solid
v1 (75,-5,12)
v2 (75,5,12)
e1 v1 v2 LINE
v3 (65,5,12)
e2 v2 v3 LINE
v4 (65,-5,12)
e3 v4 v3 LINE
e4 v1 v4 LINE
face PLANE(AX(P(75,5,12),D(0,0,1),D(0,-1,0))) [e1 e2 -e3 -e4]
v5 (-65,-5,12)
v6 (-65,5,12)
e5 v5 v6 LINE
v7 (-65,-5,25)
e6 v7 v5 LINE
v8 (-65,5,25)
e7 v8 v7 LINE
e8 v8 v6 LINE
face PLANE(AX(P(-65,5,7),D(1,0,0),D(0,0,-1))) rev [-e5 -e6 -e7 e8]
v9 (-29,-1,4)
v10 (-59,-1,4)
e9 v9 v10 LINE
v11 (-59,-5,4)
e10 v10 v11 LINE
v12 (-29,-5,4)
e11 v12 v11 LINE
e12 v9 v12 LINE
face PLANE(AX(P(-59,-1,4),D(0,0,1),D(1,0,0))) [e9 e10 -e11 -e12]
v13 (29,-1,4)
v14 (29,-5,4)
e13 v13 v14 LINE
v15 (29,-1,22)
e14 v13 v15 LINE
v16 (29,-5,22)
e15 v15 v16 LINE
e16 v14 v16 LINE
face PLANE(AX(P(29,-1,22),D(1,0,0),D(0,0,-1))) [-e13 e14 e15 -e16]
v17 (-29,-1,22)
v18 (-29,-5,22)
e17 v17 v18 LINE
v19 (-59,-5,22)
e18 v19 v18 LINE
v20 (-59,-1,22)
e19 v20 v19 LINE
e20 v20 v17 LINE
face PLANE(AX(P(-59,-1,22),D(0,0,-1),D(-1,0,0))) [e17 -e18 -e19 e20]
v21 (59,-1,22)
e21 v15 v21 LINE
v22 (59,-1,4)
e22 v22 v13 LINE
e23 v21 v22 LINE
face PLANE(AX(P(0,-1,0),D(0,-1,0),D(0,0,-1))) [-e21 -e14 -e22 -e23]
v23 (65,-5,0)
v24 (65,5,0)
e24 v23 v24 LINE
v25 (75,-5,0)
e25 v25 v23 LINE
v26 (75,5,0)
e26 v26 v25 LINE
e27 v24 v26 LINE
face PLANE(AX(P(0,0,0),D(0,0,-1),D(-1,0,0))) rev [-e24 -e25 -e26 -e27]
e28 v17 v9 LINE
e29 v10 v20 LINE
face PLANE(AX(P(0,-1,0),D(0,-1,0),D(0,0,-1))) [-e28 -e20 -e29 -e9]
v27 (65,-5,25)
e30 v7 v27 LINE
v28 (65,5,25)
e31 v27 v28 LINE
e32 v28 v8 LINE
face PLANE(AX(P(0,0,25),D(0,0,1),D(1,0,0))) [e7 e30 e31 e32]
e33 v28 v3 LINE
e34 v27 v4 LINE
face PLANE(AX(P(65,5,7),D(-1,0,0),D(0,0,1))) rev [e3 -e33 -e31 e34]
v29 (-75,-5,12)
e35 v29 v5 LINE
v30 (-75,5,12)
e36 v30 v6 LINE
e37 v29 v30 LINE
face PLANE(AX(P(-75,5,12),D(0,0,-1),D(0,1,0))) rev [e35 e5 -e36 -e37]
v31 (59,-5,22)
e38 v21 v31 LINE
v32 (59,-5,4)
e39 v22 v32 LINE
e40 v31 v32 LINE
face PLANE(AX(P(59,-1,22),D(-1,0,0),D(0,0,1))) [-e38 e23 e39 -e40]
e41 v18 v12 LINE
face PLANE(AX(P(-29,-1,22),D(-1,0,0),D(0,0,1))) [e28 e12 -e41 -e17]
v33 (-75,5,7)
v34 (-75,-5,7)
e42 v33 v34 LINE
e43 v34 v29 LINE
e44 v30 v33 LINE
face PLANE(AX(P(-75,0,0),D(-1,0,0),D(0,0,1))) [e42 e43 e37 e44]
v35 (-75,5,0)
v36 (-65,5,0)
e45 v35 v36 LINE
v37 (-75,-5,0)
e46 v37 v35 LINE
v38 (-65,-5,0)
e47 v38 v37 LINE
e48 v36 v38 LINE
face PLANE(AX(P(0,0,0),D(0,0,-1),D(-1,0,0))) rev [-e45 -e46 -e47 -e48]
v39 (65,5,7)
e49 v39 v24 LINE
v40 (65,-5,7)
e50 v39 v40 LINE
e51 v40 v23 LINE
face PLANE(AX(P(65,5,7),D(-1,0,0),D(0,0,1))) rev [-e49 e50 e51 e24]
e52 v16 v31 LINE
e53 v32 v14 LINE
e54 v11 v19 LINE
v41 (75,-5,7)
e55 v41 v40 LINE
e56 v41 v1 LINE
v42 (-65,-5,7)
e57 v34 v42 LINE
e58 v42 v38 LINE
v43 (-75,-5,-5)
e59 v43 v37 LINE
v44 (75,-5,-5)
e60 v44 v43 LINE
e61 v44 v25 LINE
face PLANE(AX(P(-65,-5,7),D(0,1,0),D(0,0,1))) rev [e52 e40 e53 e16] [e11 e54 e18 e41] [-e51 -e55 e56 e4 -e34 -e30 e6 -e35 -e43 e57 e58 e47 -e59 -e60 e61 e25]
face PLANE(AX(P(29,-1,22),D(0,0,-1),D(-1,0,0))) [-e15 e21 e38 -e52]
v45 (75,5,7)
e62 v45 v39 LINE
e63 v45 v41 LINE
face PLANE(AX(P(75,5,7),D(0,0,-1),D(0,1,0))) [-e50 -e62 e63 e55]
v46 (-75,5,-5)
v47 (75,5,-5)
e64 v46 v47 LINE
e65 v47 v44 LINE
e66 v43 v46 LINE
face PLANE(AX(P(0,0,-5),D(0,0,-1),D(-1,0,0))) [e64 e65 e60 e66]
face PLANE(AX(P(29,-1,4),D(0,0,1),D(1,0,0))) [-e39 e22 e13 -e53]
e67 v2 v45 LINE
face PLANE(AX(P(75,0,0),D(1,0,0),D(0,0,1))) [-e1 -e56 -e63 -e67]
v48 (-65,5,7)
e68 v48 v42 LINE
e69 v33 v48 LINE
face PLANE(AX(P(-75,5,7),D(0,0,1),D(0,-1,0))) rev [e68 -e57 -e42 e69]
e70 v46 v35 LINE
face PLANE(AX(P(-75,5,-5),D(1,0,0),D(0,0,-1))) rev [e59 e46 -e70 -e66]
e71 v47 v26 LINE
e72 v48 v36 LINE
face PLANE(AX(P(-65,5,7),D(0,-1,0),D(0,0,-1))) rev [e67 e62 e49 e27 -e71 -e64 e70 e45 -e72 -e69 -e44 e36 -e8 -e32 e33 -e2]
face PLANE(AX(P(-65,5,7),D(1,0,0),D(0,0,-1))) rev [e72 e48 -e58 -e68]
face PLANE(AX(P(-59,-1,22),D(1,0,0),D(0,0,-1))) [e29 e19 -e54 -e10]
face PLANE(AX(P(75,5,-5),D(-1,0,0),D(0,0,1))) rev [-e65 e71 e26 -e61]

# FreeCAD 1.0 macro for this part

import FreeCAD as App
import Part
import Sketcher
from FreeCAD import Vector
Q = App.Units.Quantity

doc = App.newDocument("Part")
body = doc.addObject("PartDesign::Body", "Body")

sketch1 = body.newObject("Sketcher::SketchObject", "Sketch")
sketch1.AttachmentSupport = (doc.getObject("XY_Plane"), [""])
sketch1.MapMode = "FlatFace"
sketch1.addGeometry([
    Part.LineSegment(Vector(-65, 5, 0), Vector(-65, -5, 0)),
    Part.LineSegment(Vector(-65, -5, 0), Vector(65, -5, 0)),
    Part.LineSegment(Vector(65, -5, 0), Vector(65, 5, 0)),
    Part.LineSegment(Vector(65, 5, 0), Vector(-65, 5, 0)),
], False)
sketch1.addConstraint([
    Sketcher.Constraint("Coincident", 0, 2, 1, 1),
    Sketcher.Constraint("Coincident", 1, 2, 2, 1),
    Sketcher.Constraint("Coincident", 2, 2, 3, 1),
    Sketcher.Constraint("Coincident", 3, 2, 0, 1),
    Sketcher.Constraint("Vertical", 0),
    Sketcher.Constraint("Horizontal", 1),
    Sketcher.Constraint("Vertical", 2),
    Sketcher.Constraint("Horizontal", 3),
    Sketcher.Constraint("Symmetric", 0, 2, 2, 2, -1, 1),
    Sketcher.Constraint("DistanceX", 1, 1, 1, 2, Q("130 mm")),
    Sketcher.Constraint("DistanceY", 0, 2, 0, 1, Q("10 mm")),
])
pad1 = body.newObject("PartDesign::Pad", "Pad")
pad1.Profile = sketch1
pad1.Length = 7

sketch2 = body.newObject("Sketcher::SketchObject", "Sketch001")
sketch2.AttachmentSupport = (doc.getObject("XY_Plane"), [""])
sketch2.MapMode = "FlatFace"
sketch2.addGeometry([
    Part.LineSegment(Vector(75, 5, 0), Vector(75, -5, 0)),
    Part.LineSegment(Vector(75, -5, 0), Vector(-75, -5, 0)),
    Part.LineSegment(Vector(-75, -5, 0), Vector(-75, 5, 0)),
    Part.LineSegment(Vector(-75, 5, 0), Vector(75, 5, 0)),
], False)
sketch2.addConstraint([
    Sketcher.Constraint("Coincident", 0, 2, 1, 1),
    Sketcher.Constraint("Coincident", 1, 2, 2, 1),
    Sketcher.Constraint("Coincident", 2, 2, 3, 1),
    Sketcher.Constraint("Coincident", 3, 2, 0, 1),
    Sketcher.Constraint("Vertical", 0),
    Sketcher.Constraint("Horizontal", 1),
    Sketcher.Constraint("Vertical", 2),
    Sketcher.Constraint("Horizontal", 3),
    Sketcher.Constraint("Symmetric", 0, 2, 2, 2, -1, 1),
    Sketcher.Constraint("DistanceX", 1, 2, 1, 1, Q("150 mm")),
    Sketcher.Constraint("DistanceY", 0, 2, 0, 1, Q("10 mm")),
])
pad2 = body.newObject("PartDesign::Pad", "Pad001")
pad2.Profile = sketch2
pad2.Length = 5
pad2.Reversed = True

sketch3 = body.newObject("Sketcher::SketchObject", "Sketch002")
sketch3.AttachmentSupport = (doc.getObject("XY_Plane"), [""])
sketch3.MapMode = "FlatFace"
sketch3.AttachmentOffset = App.Placement(Vector(0, 0, 7), App.Rotation())
sketch3.addGeometry([
    Part.LineSegment(Vector(-65, 5, 0), Vector(-65, -5, 0)),
    Part.LineSegment(Vector(-65, -5, 0), Vector(65, -5, 0)),
    Part.LineSegment(Vector(65, -5, 0), Vector(65, 5, 0)),
    Part.LineSegment(Vector(65, 5, 0), Vector(-65, 5, 0)),
], False)
sketch3.addConstraint([
    Sketcher.Constraint("Coincident", 0, 2, 1, 1),
    Sketcher.Constraint("Coincident", 1, 2, 2, 1),
    Sketcher.Constraint("Coincident", 2, 2, 3, 1),
    Sketcher.Constraint("Coincident", 3, 2, 0, 1),
    Sketcher.Constraint("Vertical", 0),
    Sketcher.Constraint("Horizontal", 1),
    Sketcher.Constraint("Vertical", 2),
    Sketcher.Constraint("Horizontal", 3),
    Sketcher.Constraint("Symmetric", 0, 2, 2, 2, -1, 1),
    Sketcher.Constraint("DistanceX", 1, 1, 1, 2, Q("130 mm")),
    Sketcher.Constraint("DistanceY", 0, 2, 0, 1, Q("10 mm")),
])
pad3 = body.newObject("PartDesign::Pad", "Pad002")
pad3.Profile = sketch3
pad3.Length = 18

sketch4 = body.newObject("Sketcher::SketchObject", "Sketch003")
sketch4.AttachmentSupport = (doc.getObject("XZ_Plane"), [""])
sketch4.MapMode = "FlatFace"
sketch4.AttachmentOffset = App.Placement(Vector(0, 0, 5), App.Rotation())
sketch4.addGeometry([
    Part.LineSegment(Vector(-59, 4, 0), Vector(-59, 22, 0)),
    Part.LineSegment(Vector(-59, 22, 0), Vector(-29, 22, 0)),
    Part.LineSegment(Vector(-29, 22, 0), Vector(-29, 4, 0)),
    Part.LineSegment(Vector(-29, 4, 0), Vector(-59, 4, 0)),
    Part.LineSegment(Vector(29, 4, 0), Vector(29, 22, 0)),
    Part.LineSegment(Vector(29, 22, 0), Vector(59, 22, 0)),
    Part.LineSegment(Vector(59, 22, 0), Vector(59, 4, 0)),
    Part.LineSegment(Vector(59, 4, 0), Vector(29, 4, 0)),
], False)
sketch4.addConstraint([
    Sketcher.Constraint("Coincident", 0, 2, 1, 1),
    Sketcher.Constraint("Coincident", 1, 2, 2, 1),
    Sketcher.Constraint("Coincident", 2, 2, 3, 1),
    Sketcher.Constraint("Coincident", 3, 2, 0, 1),
    Sketcher.Constraint("Coincident", 4, 2, 5, 1),
    Sketcher.Constraint("Coincident", 5, 2, 6, 1),
    Sketcher.Constraint("Coincident", 6, 2, 7, 1),
    Sketcher.Constraint("Coincident", 7, 2, 4, 1),
    Sketcher.Constraint("Vertical", 0),
    Sketcher.Constraint("Horizontal", 1),
    Sketcher.Constraint("Vertical", 2),
    Sketcher.Constraint("Horizontal", 3),
    Sketcher.Constraint("Vertical", 4),
    Sketcher.Constraint("Horizontal", 5),
    Sketcher.Constraint("Vertical", 6),
    Sketcher.Constraint("Horizontal", 7),
    Sketcher.Constraint("Symmetric", 1, 2, 4, 2, -2),
    Sketcher.Constraint("Symmetric", 3, 2, 6, 2, -2),
    Sketcher.Constraint("DistanceX", 1, 1, 1, 2, Q("30 mm")),
    Sketcher.Constraint("DistanceY", 0, 1, 0, 2, Q("18 mm")),
    Sketcher.Constraint("DistanceX", 0, 2, -1, 1, Q("59 mm")),
    Sketcher.Constraint("DistanceY", -1, 1, 0, 2, Q("22 mm")),
])
pocket1 = body.newObject("PartDesign::Pocket", "Pocket")
pocket1.Profile = sketch4
pocket1.Length = 4

sketch5 = body.newObject("Sketcher::SketchObject", "Sketch004")
sketch5.AttachmentSupport = (doc.getObject("YZ_Plane"), [""])
sketch5.MapMode = "FlatFace"
sketch5.AttachmentOffset = App.Placement(Vector(0, 0, -65), App.Rotation())
sketch5.addGeometry([
    Part.LineSegment(Vector(5, 7, 0), Vector(-5, 7, 0)),
    Part.LineSegment(Vector(-5, 7, 0), Vector(-5, 12, 0)),
    Part.LineSegment(Vector(-5, 12, 0), Vector(5, 12, 0)),
    Part.LineSegment(Vector(5, 12, 0), Vector(5, 7, 0)),
], False)
sketch5.addConstraint([
    Sketcher.Constraint("Coincident", 0, 2, 1, 1),
    Sketcher.Constraint("Coincident", 1, 2, 2, 1),
    Sketcher.Constraint("Coincident", 2, 2, 3, 1),
    Sketcher.Constraint("Coincident", 3, 2, 0, 1),
    Sketcher.Constraint("Horizontal", 0),
    Sketcher.Constraint("Vertical", 1),
    Sketcher.Constraint("Horizontal", 2),
    Sketcher.Constraint("Vertical", 3),
    Sketcher.Constraint("DistanceX", 0, 2, 0, 1, Q("10 mm")),
    Sketcher.Constraint("DistanceY", 1, 1, 1, 2, Q("5 mm")),
    Sketcher.Constraint("DistanceX", 0, 2, -1, 1, Q("5 mm")),
    Sketcher.Constraint("DistanceY", -1, 1, 0, 2, Q("7 mm")),
])
pad4 = body.newObject("PartDesign::Pad", "Pad003")
pad4.Profile = sketch5
pad4.Length = 10
pad4.Reversed = True
doc.recompute()

mirrored = body.newObject("PartDesign::Mirrored", "Mirrored")
mirrored.Originals = [pad4]
mirrored.MirrorPlane = (doc.getObject("YZ_Plane"), [""])
body.Tip = mirrored

doc.recompute()
